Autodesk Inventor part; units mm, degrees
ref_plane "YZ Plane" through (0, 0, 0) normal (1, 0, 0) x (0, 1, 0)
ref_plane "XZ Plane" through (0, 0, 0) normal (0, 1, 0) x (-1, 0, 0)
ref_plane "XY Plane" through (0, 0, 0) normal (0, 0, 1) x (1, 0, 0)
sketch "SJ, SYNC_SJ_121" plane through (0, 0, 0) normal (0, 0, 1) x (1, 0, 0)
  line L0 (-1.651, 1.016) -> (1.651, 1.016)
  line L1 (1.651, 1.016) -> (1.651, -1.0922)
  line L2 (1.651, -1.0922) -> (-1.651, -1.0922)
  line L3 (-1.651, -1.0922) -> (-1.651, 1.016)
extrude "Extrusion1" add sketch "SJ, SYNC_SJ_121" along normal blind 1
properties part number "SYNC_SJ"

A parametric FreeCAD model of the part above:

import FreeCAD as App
import Part
import Sketcher

V = App.Vector
Q = App.Units.Quantity

doc = App.newDocument("Part")
params = doc.addObject("Spreadsheet::Sheet", "Params")
for row, (alias, value) in enumerate([
    ("sketch1_width", "0.13 in"),
    ("sketch1_height", "0.083 in"),
    ("pad1_length", "1 mm"),
], start=1):
    params.set(f"A{row}", alias)
    params.set(f"B{row}", "=" + value)
    params.setAlias(f"B{row}", alias)

body = doc.addObject("PartDesign::Body", "Body")

# Sketch on XY plane
sketch1 = body.newObject("Sketcher::SketchObject", "Sketch")
sketch1.AttachmentSupport = (doc.getObject("XY_Plane"), [""])
sketch1.MapMode = "FlatFace"
sketch1.addGeometry(Part.LineSegment(V(1.7, 1, 0), V(-1.7, 1, 0)), False)
sketch1.addGeometry(Part.LineSegment(V(-1.7, 1, 0), V(-1.7, -1.1, 0)), False)
sketch1.addGeometry(Part.LineSegment(V(-1.7, -1.1, 0), V(1.7, -1.1, 0)), False)
sketch1.addGeometry(Part.LineSegment(V(1.7, -1.1, 0), V(1.7, 1, 0)), False)
sketch1.addConstraint(Sketcher.Constraint("Coincident", 0, 2, 1, 1))
sketch1.addConstraint(Sketcher.Constraint("Coincident", 1, 2, 2, 1))
sketch1.addConstraint(Sketcher.Constraint("Coincident", 2, 2, 3, 1))
sketch1.addConstraint(Sketcher.Constraint("Coincident", 3, 2, 0, 1))
sketch1.addConstraint(Sketcher.Constraint("Horizontal", 0))
sketch1.addConstraint(Sketcher.Constraint("Vertical", 1))
sketch1.addConstraint(Sketcher.Constraint("Horizontal", 2))
sketch1.addConstraint(Sketcher.Constraint("Vertical", 3))
sketch1.addConstraint(Sketcher.Constraint("DistanceX", 0, 2, 0, 1, Q("0.13 in")))
sketch1.addConstraint(Sketcher.Constraint("DistanceY", 1, 2, 1, 1, Q("0.083 in")))
sketch1.addConstraint(Sketcher.Constraint("DistanceY", -1, 1, 0, 2, Q("0.04 in")))
sketch1.addConstraint(Sketcher.Constraint("DistanceX", 0, 2, -1, 1, Q("0.065 in")))
sketch1.setExpression("Constraints[8]", "Params.sketch1_width")
sketch1.setExpression("Constraints[9]", "Params.sketch1_height")
pad1 = body.newObject("PartDesign::Pad", "Pad")
pad1.Profile = sketch1
pad1.setExpression("Length", "Params.pad1_length")

doc.recompute()
